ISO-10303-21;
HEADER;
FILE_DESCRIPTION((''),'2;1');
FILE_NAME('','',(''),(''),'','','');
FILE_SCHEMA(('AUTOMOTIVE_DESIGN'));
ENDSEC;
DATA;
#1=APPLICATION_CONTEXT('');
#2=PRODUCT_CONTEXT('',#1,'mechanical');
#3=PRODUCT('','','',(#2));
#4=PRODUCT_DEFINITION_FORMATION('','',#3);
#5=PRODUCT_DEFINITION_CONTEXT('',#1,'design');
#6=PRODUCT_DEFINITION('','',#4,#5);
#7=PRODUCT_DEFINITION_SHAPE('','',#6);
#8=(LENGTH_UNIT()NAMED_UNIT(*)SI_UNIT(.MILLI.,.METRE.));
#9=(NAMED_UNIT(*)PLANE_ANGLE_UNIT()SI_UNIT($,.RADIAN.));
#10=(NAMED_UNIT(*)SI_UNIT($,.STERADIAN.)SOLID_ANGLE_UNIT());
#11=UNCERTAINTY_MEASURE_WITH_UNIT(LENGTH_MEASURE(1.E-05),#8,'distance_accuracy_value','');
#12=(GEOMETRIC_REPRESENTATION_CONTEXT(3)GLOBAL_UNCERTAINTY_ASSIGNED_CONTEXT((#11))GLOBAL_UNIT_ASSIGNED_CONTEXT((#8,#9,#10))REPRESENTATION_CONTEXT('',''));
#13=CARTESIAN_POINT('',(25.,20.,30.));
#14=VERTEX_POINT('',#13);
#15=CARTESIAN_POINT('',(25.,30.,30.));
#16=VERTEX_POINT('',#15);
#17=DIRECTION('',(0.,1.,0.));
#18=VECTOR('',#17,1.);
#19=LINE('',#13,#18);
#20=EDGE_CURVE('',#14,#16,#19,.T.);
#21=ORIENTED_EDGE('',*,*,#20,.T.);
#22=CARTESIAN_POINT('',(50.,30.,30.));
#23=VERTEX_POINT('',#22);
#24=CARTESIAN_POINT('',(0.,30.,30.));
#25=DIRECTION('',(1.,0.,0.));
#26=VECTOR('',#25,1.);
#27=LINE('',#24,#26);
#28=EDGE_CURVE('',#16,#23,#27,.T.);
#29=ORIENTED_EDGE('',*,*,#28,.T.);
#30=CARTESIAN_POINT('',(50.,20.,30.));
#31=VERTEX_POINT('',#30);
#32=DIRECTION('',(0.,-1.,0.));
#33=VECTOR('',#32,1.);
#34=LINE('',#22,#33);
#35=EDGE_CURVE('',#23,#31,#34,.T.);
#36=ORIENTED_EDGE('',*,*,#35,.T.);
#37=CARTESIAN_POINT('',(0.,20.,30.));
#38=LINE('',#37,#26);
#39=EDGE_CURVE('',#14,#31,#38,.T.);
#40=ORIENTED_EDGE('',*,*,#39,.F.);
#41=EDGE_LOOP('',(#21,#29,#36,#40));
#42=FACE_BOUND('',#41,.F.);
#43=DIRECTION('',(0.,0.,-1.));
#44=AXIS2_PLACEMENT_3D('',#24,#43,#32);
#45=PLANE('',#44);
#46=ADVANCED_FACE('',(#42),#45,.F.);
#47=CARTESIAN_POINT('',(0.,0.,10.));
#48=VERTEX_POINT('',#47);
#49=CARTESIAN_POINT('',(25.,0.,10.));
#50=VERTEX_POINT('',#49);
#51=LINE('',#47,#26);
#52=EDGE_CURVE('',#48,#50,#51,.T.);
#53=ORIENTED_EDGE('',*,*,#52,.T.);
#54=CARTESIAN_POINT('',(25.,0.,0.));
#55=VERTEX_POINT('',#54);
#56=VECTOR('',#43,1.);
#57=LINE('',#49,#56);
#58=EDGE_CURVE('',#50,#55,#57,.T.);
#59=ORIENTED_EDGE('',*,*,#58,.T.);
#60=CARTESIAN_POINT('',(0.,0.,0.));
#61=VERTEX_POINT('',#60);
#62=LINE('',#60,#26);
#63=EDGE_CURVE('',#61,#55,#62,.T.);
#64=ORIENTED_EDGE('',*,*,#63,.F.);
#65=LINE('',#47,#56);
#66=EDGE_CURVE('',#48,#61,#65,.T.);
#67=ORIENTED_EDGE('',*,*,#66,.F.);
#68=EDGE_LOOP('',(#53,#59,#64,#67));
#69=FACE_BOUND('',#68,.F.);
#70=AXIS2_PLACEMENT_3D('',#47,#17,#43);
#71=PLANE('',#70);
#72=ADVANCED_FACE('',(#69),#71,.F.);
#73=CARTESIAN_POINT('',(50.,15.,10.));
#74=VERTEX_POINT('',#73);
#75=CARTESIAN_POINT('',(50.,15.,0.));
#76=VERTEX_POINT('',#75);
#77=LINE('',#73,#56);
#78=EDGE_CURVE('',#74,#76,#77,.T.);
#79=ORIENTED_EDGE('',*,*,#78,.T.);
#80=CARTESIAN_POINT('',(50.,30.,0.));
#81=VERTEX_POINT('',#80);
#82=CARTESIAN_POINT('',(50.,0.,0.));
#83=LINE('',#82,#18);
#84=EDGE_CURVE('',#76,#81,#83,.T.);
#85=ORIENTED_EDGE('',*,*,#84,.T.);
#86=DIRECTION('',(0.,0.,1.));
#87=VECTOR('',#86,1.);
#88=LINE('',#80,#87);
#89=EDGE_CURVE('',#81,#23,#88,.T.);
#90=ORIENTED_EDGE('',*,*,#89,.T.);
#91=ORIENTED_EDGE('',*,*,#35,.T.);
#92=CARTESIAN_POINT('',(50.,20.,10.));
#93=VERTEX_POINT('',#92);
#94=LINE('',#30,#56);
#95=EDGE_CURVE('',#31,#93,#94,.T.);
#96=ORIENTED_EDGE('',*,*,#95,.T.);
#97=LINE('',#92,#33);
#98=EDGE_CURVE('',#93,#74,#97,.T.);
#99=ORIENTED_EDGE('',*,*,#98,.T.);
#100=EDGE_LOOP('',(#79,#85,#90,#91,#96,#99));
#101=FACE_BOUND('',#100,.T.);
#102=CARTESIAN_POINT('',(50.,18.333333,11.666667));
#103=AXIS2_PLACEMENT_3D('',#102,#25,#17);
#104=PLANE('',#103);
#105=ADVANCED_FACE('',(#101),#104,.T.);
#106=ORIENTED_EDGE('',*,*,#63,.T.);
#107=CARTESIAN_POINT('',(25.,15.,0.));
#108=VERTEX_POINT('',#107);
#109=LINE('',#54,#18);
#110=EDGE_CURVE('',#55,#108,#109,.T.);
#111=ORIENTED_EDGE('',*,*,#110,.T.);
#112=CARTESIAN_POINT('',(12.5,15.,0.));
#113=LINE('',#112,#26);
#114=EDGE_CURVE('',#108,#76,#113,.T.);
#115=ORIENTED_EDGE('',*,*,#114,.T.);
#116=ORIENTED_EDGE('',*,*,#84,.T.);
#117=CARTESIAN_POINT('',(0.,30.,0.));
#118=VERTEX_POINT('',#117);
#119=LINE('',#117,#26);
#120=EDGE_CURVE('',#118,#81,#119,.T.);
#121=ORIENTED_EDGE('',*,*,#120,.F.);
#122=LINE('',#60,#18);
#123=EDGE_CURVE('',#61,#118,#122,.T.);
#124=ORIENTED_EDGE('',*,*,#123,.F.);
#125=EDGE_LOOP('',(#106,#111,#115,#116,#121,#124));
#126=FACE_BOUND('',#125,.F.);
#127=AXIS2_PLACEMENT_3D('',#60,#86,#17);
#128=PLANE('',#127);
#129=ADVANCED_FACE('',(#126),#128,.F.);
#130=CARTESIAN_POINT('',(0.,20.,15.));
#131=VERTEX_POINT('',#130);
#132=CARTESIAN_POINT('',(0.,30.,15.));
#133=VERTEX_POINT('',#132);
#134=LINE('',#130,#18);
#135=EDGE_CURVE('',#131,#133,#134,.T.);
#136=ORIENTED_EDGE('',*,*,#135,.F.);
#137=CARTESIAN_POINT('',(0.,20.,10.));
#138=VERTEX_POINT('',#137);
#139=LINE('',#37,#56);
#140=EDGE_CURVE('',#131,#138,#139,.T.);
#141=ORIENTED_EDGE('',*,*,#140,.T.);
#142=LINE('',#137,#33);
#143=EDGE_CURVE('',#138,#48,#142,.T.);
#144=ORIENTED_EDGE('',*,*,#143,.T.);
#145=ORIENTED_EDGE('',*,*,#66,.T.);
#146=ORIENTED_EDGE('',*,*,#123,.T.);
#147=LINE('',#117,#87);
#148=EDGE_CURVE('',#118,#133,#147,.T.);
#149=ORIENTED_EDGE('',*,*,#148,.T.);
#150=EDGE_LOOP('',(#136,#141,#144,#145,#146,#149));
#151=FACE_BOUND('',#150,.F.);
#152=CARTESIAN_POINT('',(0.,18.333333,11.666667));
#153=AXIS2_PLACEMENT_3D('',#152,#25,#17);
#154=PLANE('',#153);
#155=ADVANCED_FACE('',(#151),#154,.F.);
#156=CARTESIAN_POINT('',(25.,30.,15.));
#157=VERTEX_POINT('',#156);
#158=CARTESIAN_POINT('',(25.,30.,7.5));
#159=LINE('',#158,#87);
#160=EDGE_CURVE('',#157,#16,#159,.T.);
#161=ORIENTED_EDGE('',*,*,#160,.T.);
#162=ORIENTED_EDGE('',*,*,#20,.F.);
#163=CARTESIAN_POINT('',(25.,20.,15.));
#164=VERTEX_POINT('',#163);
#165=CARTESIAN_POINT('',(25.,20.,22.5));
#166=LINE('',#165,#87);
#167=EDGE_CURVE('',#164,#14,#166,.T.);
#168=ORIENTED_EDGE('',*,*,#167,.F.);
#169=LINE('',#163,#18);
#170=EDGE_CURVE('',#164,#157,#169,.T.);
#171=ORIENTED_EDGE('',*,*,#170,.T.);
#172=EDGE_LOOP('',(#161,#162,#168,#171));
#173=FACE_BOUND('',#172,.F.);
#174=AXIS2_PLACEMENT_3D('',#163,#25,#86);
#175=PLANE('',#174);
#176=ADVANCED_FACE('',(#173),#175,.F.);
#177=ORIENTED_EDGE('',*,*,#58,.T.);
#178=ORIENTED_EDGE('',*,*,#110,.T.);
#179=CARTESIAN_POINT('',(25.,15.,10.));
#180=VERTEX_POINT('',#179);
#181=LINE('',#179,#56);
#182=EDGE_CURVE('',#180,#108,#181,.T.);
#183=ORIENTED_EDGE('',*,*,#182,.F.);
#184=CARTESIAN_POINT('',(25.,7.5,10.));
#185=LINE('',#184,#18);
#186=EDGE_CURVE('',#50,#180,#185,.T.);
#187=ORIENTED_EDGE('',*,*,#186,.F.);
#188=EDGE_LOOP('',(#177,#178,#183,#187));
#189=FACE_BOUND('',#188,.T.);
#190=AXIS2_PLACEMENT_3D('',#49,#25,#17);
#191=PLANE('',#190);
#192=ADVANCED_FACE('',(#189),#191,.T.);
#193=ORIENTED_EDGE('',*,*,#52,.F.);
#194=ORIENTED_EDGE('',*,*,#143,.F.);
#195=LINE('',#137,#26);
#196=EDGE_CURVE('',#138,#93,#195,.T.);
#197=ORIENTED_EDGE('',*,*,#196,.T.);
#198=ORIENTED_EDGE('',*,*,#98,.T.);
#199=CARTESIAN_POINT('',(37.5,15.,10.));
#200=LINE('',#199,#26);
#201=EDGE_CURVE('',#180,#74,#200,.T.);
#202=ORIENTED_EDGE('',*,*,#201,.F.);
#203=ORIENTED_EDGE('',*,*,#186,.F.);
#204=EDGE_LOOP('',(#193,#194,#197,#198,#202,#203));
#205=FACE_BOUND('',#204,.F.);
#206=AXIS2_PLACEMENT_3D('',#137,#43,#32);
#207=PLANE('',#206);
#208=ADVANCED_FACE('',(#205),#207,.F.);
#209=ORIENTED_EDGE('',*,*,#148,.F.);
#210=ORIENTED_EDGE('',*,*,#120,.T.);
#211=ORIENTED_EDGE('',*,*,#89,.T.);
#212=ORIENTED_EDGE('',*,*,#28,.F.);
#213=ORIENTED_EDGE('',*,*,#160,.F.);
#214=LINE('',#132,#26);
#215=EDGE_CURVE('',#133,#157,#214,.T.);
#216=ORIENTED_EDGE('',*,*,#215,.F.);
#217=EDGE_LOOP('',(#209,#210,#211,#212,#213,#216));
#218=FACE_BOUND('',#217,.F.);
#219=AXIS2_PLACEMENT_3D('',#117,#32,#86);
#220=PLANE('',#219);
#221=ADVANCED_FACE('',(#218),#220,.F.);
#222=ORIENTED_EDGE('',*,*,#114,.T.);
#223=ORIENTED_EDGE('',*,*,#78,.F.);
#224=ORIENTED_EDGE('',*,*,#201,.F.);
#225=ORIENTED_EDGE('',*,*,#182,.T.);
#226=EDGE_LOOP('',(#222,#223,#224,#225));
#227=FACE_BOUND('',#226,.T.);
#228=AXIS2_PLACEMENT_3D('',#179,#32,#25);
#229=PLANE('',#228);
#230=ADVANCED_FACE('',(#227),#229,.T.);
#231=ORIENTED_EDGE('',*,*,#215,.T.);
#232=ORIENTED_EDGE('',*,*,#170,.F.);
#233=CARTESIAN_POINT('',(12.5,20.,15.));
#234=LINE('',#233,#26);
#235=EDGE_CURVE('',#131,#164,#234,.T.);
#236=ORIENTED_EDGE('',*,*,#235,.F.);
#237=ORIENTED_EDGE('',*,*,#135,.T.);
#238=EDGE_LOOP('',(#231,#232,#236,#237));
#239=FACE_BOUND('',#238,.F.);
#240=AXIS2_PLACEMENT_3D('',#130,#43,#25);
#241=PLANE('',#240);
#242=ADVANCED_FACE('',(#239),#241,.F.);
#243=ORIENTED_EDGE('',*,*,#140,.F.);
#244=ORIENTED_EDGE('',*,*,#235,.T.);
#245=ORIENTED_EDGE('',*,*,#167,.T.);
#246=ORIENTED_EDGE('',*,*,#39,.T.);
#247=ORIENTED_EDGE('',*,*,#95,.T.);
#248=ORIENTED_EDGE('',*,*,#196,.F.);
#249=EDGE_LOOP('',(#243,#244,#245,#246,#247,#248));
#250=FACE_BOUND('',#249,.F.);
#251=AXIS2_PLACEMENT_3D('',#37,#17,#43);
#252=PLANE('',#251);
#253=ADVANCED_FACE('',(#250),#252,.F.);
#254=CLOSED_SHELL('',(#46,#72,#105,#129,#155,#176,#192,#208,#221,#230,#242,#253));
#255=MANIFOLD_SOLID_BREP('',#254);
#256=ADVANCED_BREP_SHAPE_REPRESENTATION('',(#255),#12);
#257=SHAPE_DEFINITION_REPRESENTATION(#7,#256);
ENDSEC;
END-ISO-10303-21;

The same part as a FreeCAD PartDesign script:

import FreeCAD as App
import Part
import Sketcher

V = App.Vector
Q = App.Units.Quantity

doc = App.newDocument("Part")
body = doc.addObject("PartDesign::Body", "Body")

sketch1 = doc.addObject("Sketcher::SketchObject", "Sketch")
body.addObject(sketch1)
sketch1.AttachmentSupport = (doc.YZ_Plane, [""])
sketch1.MapMode = "FlatFace"
sketch1.addGeometry(Part.LineSegment(V(0, 10, 0), V(0, 0, 0)), False)
sketch1.addGeometry(Part.LineSegment(V(0, 0, 0), V(30, 0, 0)), False)
sketch1.addGeometry(Part.LineSegment(V(30, 0, 0), V(30, 30, 0)), False)
sketch1.addGeometry(Part.LineSegment(V(30, 30, 0), V(20, 30, 0)), False)
sketch1.addGeometry(Part.LineSegment(V(20, 30, 0), V(20, 10, 0)), False)
sketch1.addGeometry(Part.LineSegment(V(20, 10, 0), V(0, 10, 0)), False)
sketch1.addConstraint(Sketcher.Constraint("Coincident", 0, 2, 1, 1))
sketch1.addConstraint(Sketcher.Constraint("Coincident", 1, 2, 2, 1))
sketch1.addConstraint(Sketcher.Constraint("Coincident", 2, 2, 3, 1))
sketch1.addConstraint(Sketcher.Constraint("Coincident", 3, 2, 4, 1))
sketch1.addConstraint(Sketcher.Constraint("Coincident", 4, 2, 5, 1))
sketch1.addConstraint(Sketcher.Constraint("Coincident", 5, 2, 0, 1))
sketch1.addConstraint(Sketcher.Constraint("Vertical", 0))
sketch1.addConstraint(Sketcher.Constraint("Horizontal", 1))
sketch1.addConstraint(Sketcher.Constraint("Vertical", 2))
sketch1.addConstraint(Sketcher.Constraint("Horizontal", 3))
sketch1.addConstraint(Sketcher.Constraint("Vertical", 4))
sketch1.addConstraint(Sketcher.Constraint("Horizontal", 5))
sketch1.addConstraint(Sketcher.Constraint("Coincident", 0, 2, -1, 1))
sketch1.addConstraint(Sketcher.Constraint("Equal", 3, 0))
sketch1.addConstraint(Sketcher.Constraint("Equal", 1, 2))
sketch1.addConstraint(Sketcher.Constraint("DistanceX", 1, 1, 1, 2, Q("30 mm")))
sketch1.addConstraint(Sketcher.Constraint("DistanceX", 3, 2, 3, 1, Q("10 mm")))
pad1 = doc.addObject("PartDesign::Pad", "Pad")
body.addObject(pad1)
pad1.Profile = sketch1
pad1.Length = 50

sketch2 = doc.addObject("Sketcher::SketchObject", "Sketch001")
body.addObject(sketch2)
sketch2.AttachmentSupport = (doc.XZ_Plane, [""])
sketch2.MapMode = "FlatFace"
sketch2.AttachmentOffset = App.Placement(V(0, 0, -20), App.Rotation())
sketch2.addGeometry(Part.LineSegment(V(0, 30, 0), V(0, 15, 0)), False)
sketch2.addGeometry(Part.LineSegment(V(0, 15, 0), V(25, 15, 0)), False)
sketch2.addGeometry(Part.LineSegment(V(25, 15, 0), V(25, 30, 0)), False)
sketch2.addGeometry(Part.LineSegment(V(25, 30, 0), V(0, 30, 0)), False)
sketch2.addConstraint(Sketcher.Constraint("Coincident", 0, 2, 1, 1))
sketch2.addConstraint(Sketcher.Constraint("Coincident", 1, 2, 2, 1))
sketch2.addConstraint(Sketcher.Constraint("Coincident", 2, 2, 3, 1))
sketch2.addConstraint(Sketcher.Constraint("Coincident", 3, 2, 0, 1))
sketch2.addConstraint(Sketcher.Constraint("Vertical", 0))
sketch2.addConstraint(Sketcher.Constraint("Horizontal", 1))
sketch2.addConstraint(Sketcher.Constraint("Vertical", 2))
sketch2.addConstraint(Sketcher.Constraint("Horizontal", 3))
sketch2.addConstraint(Sketcher.Constraint("PointOnObject", 0, 2, -2))
sketch2.addConstraint(Sketcher.Constraint("DistanceX", 1, 1, 1, 2, Q("25 mm")))
sketch2.addConstraint(Sketcher.Constraint("DistanceY", 0, 2, 0, 1, Q("15 mm")))
sketch2.addConstraint(Sketcher.Constraint("DistanceY", -1, 1, 0, 2, Q("15 mm")))
pocket1 = doc.addObject("PartDesign::Pocket", "Pocket")
body.addObject(pocket1)
pocket1.Profile = sketch2
pocket1.Type = "ThroughAll"

sketch3 = doc.addObject("Sketcher::SketchObject", "Sketch002")
body.addObject(sketch3)
sketch3.AttachmentSupport = (doc.XY_Plane, [""])
sketch3.MapMode = "FlatFace"
sketch3.AttachmentOffset = App.Placement(V(0, 0, 10), App.Rotation())
sketch3.addGeometry(Part.LineSegment(V(25, 15, 0), V(25, 0, 0)), False)
sketch3.addGeometry(Part.LineSegment(V(25, 0, 0), V(50, 0, 0)), False)
sketch3.addGeometry(Part.LineSegment(V(50, 0, 0), V(50, 15, 0)), False)
sketch3.addGeometry(Part.LineSegment(V(50, 15, 0), V(25, 15, 0)), False)
sketch3.addConstraint(Sketcher.Constraint("Coincident", 0, 2, 1, 1))
sketch3.addConstraint(Sketcher.Constraint("Coincident", 1, 2, 2, 1))
sketch3.addConstraint(Sketcher.Constraint("Coincident", 2, 2, 3, 1))
sketch3.addConstraint(Sketcher.Constraint("Coincident", 3, 2, 0, 1))
sketch3.addConstraint(Sketcher.Constraint("Vertical", 0))
sketch3.addConstraint(Sketcher.Constraint("Horizontal", 1))
sketch3.addConstraint(Sketcher.Constraint("Vertical", 2))
sketch3.addConstraint(Sketcher.Constraint("Horizontal", 3))
sketch3.addConstraint(Sketcher.Constraint("PointOnObject", 0, 2, -1))
sketch3.addConstraint(Sketcher.Constraint("DistanceX", 1, 1, 1, 2, Q("25 mm")))
sketch3.addConstraint(Sketcher.Constraint("DistanceY", 0, 2, 0, 1, Q("15 mm")))
sketch3.addConstraint(Sketcher.Constraint("DistanceX", -1, 1, 0, 2, Q("25 mm")))
pocket2 = doc.addObject("PartDesign::Pocket", "Pocket001")
body.addObject(pocket2)
pocket2.Profile = sketch3
pocket2.Type = "ThroughAll"

doc.recompute()
